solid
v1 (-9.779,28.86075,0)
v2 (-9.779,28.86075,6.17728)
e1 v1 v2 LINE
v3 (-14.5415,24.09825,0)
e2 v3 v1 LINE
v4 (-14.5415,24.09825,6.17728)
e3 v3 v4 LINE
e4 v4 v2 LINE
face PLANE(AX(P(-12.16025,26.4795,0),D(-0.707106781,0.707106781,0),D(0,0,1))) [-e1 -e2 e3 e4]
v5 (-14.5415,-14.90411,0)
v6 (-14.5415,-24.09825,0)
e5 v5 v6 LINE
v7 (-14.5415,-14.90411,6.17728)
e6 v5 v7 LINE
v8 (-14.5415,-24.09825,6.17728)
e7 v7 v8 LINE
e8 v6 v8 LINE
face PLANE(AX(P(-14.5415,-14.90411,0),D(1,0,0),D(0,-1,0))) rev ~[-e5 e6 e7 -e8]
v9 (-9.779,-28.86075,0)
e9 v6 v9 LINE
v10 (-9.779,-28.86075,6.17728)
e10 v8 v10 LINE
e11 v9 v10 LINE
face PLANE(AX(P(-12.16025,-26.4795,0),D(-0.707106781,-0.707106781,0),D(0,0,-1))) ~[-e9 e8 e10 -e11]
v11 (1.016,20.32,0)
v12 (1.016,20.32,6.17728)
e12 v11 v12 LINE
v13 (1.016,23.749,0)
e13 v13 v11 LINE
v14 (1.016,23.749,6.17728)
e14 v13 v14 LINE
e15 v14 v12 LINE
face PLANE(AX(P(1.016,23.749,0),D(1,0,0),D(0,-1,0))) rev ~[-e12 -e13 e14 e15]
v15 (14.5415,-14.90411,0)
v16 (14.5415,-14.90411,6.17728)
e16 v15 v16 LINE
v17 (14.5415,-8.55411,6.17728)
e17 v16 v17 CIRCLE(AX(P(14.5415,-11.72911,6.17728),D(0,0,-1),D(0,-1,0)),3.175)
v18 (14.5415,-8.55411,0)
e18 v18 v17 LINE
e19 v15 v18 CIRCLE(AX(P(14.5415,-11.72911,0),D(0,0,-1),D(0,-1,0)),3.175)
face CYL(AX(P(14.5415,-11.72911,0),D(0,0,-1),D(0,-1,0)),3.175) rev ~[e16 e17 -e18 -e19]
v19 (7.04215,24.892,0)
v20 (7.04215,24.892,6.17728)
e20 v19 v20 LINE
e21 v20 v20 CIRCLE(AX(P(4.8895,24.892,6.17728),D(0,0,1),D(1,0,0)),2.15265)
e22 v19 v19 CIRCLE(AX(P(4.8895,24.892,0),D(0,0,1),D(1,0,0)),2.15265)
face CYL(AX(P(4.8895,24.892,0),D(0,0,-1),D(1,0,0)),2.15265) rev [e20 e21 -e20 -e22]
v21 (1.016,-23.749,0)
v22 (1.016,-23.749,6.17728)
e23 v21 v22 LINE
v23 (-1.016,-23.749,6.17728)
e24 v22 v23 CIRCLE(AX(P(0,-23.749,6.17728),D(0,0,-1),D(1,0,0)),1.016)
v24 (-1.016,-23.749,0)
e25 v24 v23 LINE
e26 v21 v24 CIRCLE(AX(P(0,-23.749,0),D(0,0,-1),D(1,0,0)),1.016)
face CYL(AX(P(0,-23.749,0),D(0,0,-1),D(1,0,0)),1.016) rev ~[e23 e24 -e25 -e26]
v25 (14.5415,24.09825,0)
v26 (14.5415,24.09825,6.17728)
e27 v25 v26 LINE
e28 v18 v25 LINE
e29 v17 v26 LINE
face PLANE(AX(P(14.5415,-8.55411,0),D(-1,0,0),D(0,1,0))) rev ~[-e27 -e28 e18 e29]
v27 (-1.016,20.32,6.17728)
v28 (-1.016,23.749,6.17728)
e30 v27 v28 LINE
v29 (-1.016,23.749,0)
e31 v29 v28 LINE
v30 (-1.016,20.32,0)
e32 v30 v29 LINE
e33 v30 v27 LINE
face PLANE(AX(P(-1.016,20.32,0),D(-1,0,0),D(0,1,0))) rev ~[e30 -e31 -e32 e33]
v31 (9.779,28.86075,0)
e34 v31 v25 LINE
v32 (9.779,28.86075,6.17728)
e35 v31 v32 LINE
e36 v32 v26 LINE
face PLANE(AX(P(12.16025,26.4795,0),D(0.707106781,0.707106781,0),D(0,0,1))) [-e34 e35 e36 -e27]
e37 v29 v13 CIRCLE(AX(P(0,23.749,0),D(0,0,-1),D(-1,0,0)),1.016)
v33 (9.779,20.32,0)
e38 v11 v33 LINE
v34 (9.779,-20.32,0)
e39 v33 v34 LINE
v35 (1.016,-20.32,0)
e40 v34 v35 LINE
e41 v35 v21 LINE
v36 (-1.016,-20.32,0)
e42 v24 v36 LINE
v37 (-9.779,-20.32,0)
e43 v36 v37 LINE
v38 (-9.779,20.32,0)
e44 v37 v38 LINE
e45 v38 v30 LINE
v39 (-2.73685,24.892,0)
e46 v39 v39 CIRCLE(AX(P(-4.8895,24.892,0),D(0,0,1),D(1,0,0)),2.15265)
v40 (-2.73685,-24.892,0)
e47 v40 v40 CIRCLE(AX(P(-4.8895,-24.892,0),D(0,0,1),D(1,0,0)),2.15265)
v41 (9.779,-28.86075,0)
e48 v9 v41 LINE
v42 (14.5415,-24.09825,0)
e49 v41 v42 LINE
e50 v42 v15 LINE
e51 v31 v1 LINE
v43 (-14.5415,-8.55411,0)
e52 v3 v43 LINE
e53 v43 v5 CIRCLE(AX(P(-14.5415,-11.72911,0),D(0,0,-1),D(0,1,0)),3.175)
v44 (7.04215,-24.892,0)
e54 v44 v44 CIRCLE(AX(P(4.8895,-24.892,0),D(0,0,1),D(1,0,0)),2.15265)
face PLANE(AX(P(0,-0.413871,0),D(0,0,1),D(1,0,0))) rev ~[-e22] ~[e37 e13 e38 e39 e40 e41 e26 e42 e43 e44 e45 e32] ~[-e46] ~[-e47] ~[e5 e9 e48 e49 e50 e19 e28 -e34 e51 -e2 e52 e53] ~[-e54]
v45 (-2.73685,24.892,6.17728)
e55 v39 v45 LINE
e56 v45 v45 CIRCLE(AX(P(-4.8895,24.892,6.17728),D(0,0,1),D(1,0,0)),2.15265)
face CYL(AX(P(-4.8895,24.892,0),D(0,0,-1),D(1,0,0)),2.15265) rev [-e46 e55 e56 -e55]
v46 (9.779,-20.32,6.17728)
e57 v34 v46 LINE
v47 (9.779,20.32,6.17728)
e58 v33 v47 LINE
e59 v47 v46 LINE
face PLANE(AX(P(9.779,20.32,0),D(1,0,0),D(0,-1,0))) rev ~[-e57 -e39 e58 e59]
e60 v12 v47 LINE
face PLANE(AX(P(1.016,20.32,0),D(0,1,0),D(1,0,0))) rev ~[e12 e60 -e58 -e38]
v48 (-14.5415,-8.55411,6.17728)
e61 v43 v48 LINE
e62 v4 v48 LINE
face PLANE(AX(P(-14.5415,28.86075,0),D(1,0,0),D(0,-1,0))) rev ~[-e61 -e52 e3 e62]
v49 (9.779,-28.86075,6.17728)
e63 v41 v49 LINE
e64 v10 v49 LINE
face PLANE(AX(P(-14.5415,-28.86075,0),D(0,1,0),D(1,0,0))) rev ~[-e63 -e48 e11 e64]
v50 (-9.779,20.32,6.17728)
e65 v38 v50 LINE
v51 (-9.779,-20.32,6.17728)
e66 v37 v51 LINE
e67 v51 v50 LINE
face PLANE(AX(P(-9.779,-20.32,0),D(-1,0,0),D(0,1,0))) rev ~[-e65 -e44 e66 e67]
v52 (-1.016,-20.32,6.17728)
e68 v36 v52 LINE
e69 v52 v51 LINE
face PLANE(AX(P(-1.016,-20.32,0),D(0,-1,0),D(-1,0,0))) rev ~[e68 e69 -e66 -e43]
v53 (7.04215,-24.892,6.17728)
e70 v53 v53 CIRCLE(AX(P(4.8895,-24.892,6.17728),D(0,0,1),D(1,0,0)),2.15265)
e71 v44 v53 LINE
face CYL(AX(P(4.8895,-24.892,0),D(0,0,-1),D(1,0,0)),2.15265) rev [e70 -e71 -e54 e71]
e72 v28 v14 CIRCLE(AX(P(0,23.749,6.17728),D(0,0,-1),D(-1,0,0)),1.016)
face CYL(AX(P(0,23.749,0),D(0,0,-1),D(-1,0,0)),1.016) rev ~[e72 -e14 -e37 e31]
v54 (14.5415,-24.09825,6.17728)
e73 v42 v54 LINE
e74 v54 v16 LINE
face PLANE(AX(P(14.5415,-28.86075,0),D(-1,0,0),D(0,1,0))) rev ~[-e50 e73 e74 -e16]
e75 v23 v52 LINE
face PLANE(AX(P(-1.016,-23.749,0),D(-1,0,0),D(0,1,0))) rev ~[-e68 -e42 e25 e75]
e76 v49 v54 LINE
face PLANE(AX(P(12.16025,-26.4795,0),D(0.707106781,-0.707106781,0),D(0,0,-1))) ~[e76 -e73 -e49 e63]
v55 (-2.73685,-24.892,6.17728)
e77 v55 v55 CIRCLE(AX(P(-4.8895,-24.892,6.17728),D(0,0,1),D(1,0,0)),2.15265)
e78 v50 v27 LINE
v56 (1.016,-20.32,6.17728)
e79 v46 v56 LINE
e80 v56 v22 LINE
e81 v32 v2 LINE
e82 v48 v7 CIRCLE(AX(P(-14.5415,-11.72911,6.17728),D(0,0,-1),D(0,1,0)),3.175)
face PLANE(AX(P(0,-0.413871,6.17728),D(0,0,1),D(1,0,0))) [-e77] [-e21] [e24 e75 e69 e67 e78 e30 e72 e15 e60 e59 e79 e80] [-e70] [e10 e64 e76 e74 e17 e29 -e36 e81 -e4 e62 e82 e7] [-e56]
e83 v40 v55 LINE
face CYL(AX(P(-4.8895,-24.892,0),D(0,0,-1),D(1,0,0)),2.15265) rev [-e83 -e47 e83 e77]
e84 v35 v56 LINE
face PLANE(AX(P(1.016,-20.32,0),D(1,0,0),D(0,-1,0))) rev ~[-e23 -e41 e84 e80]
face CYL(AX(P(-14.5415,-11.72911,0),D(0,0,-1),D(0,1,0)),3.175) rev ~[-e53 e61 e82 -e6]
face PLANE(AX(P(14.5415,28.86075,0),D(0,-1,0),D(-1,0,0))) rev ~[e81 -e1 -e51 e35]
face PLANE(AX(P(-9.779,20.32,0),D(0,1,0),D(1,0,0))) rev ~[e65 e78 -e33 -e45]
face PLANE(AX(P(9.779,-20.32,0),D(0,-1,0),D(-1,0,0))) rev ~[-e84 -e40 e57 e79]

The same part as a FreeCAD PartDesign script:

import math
import FreeCAD as App
import Part
import Sketcher

V = App.Vector
Q = App.Units.Quantity


def edges_at(feature, points):
    """Names of the edges that pass closest to the given points."""
    edges = feature.Shape.Edges
    near = lambda p: min(range(len(edges)), key=lambda i: edges[i].distToShape(Part.Vertex(*p))[0])
    return sorted({f"Edge{near(p) + 1}" for p in points})

doc = App.newDocument("Part")
body = doc.addObject("PartDesign::Body", "Body")

sketch1 = body.newObject("Sketcher::SketchObject", "Sketch")
sketch1.AttachmentSupport = (doc.getObject("XY_Plane"), [""])
sketch1.MapMode = "FlatFace"
sketch1.addGeometry([
    Part.ArcOfCircle(Part.Circle(V(-14.5415, -11.72911, 0), V(0, 0, 1), 3.175), math.radians(-90), math.radians(90)),
    Part.LineSegment(V(-14.5415, -14.90411, 0), V(-14.5415, -28.86075, 0)),
    Part.LineSegment(V(-14.5415, -28.86075, 0), V(14.5415, -28.86075, 0)),
    Part.LineSegment(V(14.5415, -28.86075, 0), V(14.5415, -14.90411, 0)),
    Part.ArcOfCircle(Part.Circle(V(14.5415, -11.72911, 0), V(0, 0, 1), 3.175), math.radians(90), math.radians(270)),
    Part.LineSegment(V(14.5415, -8.55411, 0), V(14.5415, 28.86075, 0)),
    Part.LineSegment(V(14.5415, 28.86075, 0), V(-14.5415, 28.86075, 0)),
    Part.LineSegment(V(-14.5415, 28.86075, 0), V(-14.5415, -8.55411, 0)),
    Part.Circle(V(-4.8895, -24.892, 0), V(0, 0, 1), 2.15265),
    Part.Circle(V(4.8895, -24.892, 0), V(0, 0, 1), 2.15265),
    Part.Circle(V(-4.8895, 24.892, 0), V(0, 0, 1), 2.15265),
    Part.LineSegment(V(1.016, 20.32, 0), V(9.779, 20.32, 0)),
    Part.LineSegment(V(9.779, 20.32, 0), V(9.779, -20.32, 0)),
    Part.LineSegment(V(9.779, -20.32, 0), V(1.016, -20.32, 0)),
    Part.LineSegment(V(1.016, -20.32, 0), V(1.016, -23.749, 0)),
    Part.ArcOfCircle(Part.Circle(V(0, -23.749, 0), V(0, 0, 1), 1.016), math.radians(180), math.radians(360)),
    Part.LineSegment(V(-1.016, -23.749, 0), V(-1.016, -20.32, 0)),
    Part.LineSegment(V(-1.016, -20.32, 0), V(-9.779, -20.32, 0)),
    Part.LineSegment(V(-9.779, -20.32, 0), V(-9.779, 20.32, 0)),
    Part.LineSegment(V(-9.779, 20.32, 0), V(-1.016, 20.32, 0)),
    Part.LineSegment(V(-1.016, 20.32, 0), V(-1.016, 23.749, 0)),
    Part.ArcOfCircle(Part.Circle(V(0, 23.749, 0), V(0, 0, 1), 1.016), math.radians(0), math.radians(180)),
    Part.LineSegment(V(1.016, 23.749, 0), V(1.016, 20.32, 0)),
    Part.Circle(V(4.8895, 24.892, 0), V(0, 0, 1), 2.15265),
], False)
sketch1.addConstraint([
    Sketcher.Constraint("Coincident", 0, 1, 1, 1),
    Sketcher.Constraint("Coincident", 1, 2, 2, 1),
    Sketcher.Constraint("Coincident", 2, 2, 3, 1),
    Sketcher.Constraint("Coincident", 3, 2, 4, 2),
    Sketcher.Constraint("Coincident", 4, 1, 5, 1),
    Sketcher.Constraint("Coincident", 5, 2, 6, 1),
    Sketcher.Constraint("Coincident", 6, 2, 7, 1),
    Sketcher.Constraint("Coincident", 7, 2, 0, 2),
    Sketcher.Constraint("Coincident", 11, 2, 12, 1),
    Sketcher.Constraint("Coincident", 12, 2, 13, 1),
    Sketcher.Constraint("Coincident", 13, 2, 14, 1),
    Sketcher.Constraint("Tangent", 14, 2, 15, 2),
    Sketcher.Constraint("Tangent", 15, 1, 16, 1),
    Sketcher.Constraint("Coincident", 16, 2, 17, 1),
    Sketcher.Constraint("Coincident", 17, 2, 18, 1),
    Sketcher.Constraint("Coincident", 18, 2, 19, 1),
    Sketcher.Constraint("Coincident", 19, 2, 20, 1),
    Sketcher.Constraint("Tangent", 20, 2, 21, 2),
    Sketcher.Constraint("Tangent", 21, 1, 22, 1),
    Sketcher.Constraint("Coincident", 22, 2, 11, 1),
    Sketcher.Constraint("Vertical", 1),
    Sketcher.Constraint("Horizontal", 2),
    Sketcher.Constraint("Vertical", 3),
    Sketcher.Constraint("Vertical", 5),
    Sketcher.Constraint("Horizontal", 6),
    Sketcher.Constraint("Vertical", 7),
    Sketcher.Constraint("Horizontal", 11),
    Sketcher.Constraint("Vertical", 12),
    Sketcher.Constraint("Horizontal", 13),
    Sketcher.Constraint("Vertical", 14),
    Sketcher.Constraint("Vertical", 16),
    Sketcher.Constraint("Horizontal", 17),
    Sketcher.Constraint("Vertical", 18),
    Sketcher.Constraint("Horizontal", 19),
    Sketcher.Constraint("Vertical", 20),
    Sketcher.Constraint("Vertical", 22),
    Sketcher.Constraint("Equal", 0, 4),
    Sketcher.Constraint("Equal", 8, 9),
    Sketcher.Constraint("Equal", 9, 10),
    Sketcher.Constraint("Equal", 15, 21),
    Sketcher.Constraint("Equal", 10, 23),
    Sketcher.Constraint("Symmetric", 9, 3, 10, 3, -1, 1),
    Sketcher.Constraint("Symmetric", 15, 3, 21, 3, -1, 1),
    Sketcher.Constraint("Symmetric", 8, 3, 23, 3, -1, 1),
    Sketcher.Constraint("Symmetric", 1, 2, 5, 2, -1, 1),
    Sketcher.Constraint("Symmetric", 11, 2, 17, 2, -1, 1),
    Sketcher.Constraint("Symmetric", 0, 3, 4, 3, -2),
    Sketcher.Constraint("Symmetric", 8, 3, 9, 3, -2),
    Sketcher.Constraint("Symmetric", 13, 2, 16, 2, -2),
    Sketcher.Constraint("Horizontal", 11, 2, 18, 2),
    Sketcher.Constraint("Vertical", 4, 3, 2, 2),
    Sketcher.Constraint("Vertical", 3, 2, 4, 1),
    Sketcher.Constraint("Vertical", 1, 2, 6, 2),
    Sketcher.Constraint("Radius", 15, Q("0.04 in")),
    Sketcher.Constraint("DistanceY", 12, 2, 12, 1, Q("1.6 in")),
    Sketcher.Constraint("Radius", 0, Q("0.125 in")),
    Sketcher.Constraint("Diameter", 8, Q("0.1695 in")),
    Sketcher.Constraint("DistanceX", 2, 1, 2, 2, Q("1.145 in")),
    Sketcher.Constraint("DistanceX", 11, 1, 11, 2, Q("0.345 in")),
    Sketcher.Constraint("DistanceY", 14, 2, 14, 1, Q("0.135 in")),
    Sketcher.Constraint("DistanceY", 8, 3, -1, 1, Q("0.98 in")),
    Sketcher.Constraint("DistanceX", 0, 3, 8, 3, Q("0.38 in")),
    Sketcher.Constraint("DistanceY", 1, 2, 8, 3, Q("0.15625 in")),
    Sketcher.Constraint("DistanceY", 1, 2, 1, 1, 13.95664),
])
pad1 = body.newObject("PartDesign::Pad", "Pad")
pad1.Profile = sketch1
pad1.Length = Q("0.2432 in")
doc.recompute()

chamfer = body.newObject("PartDesign::Chamfer", "Chamfer")
chamfer.Base = (pad1, edges_at(pad1, [
    (14.541, -28.861, 3.089),
    (14.541, 28.861, 3.089),
    (-14.541, 28.861, 3.089),
    (-14.541, -28.861, 3.089),
]))
chamfer.Size = Q("0.1875 in")

doc.recompute()
